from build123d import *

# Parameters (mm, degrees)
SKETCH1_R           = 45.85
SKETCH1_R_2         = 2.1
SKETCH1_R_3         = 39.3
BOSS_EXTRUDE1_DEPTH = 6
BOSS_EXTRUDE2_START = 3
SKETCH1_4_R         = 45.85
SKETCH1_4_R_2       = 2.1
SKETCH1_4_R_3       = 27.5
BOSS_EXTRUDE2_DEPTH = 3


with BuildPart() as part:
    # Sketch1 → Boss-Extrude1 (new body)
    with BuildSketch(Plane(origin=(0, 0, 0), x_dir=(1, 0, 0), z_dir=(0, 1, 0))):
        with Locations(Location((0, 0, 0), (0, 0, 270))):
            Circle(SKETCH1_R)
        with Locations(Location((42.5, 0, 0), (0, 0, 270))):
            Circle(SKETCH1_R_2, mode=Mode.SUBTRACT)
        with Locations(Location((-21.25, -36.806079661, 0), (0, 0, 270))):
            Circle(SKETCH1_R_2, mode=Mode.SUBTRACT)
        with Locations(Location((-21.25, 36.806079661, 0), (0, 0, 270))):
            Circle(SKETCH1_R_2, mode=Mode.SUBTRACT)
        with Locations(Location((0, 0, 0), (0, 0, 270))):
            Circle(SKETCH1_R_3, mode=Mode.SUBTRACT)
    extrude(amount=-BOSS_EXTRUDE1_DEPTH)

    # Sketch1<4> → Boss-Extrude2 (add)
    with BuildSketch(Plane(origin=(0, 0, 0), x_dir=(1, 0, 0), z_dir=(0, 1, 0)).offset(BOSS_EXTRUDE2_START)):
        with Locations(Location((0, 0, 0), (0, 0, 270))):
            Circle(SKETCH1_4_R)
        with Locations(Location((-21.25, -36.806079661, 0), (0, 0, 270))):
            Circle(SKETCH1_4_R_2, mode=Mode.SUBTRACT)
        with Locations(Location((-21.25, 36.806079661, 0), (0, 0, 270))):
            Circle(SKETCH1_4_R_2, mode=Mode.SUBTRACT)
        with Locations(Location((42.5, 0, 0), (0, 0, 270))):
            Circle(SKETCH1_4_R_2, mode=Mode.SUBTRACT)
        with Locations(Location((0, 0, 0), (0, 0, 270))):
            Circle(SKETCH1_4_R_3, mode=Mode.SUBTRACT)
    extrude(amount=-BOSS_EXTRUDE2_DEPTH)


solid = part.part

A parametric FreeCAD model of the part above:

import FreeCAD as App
import Part
import Sketcher

V = App.Vector

doc = App.newDocument("Part")
body = doc.addObject("PartDesign::Body", "Body")

# Sketch on XZ plane
sketch1 = doc.addObject("Sketcher::SketchObject", "Sketch")
body.addObject(sketch1)
sketch1.AttachmentSupport = (doc.XZ_Plane, [""])
sketch1.MapMode = "FlatFace"
sketch1.addGeometry(Part.Circle(V(0, 0, 0), V(0, 0, 1), 45.9), False)
sketch1.addGeometry(Part.Circle(V(-21.2, -36.8, 0), V(0, 0, 1), 2.1), False)
sketch1.addGeometry(Part.Circle(V(-21.2, 36.8, 0), V(0, 0, 1), 2.1), False)
sketch1.addGeometry(Part.Circle(V(0, 0, 0), V(0, 0, 1), 39.3), False)
sketch1.addGeometry(Part.Circle(V(42.5, 0, 0), V(0, 0, 1), 2.1), False)
sketch1.addConstraint(Sketcher.Constraint("Coincident", 0, 3, -1, 1))
sketch1.addConstraint(Sketcher.Constraint("Coincident", 3, 3, -1, 1))
sketch1.addConstraint(Sketcher.Constraint("Equal", 1, 2))
sketch1.addConstraint(Sketcher.Constraint("Equal", 2, 4))
sketch1.addConstraint(Sketcher.Constraint("Symmetric", 1, 3, 2, 3, -1))
sketch1.addConstraint(Sketcher.Constraint("PointOnObject", 4, 3, -1))
sketch1.addConstraint(Sketcher.Constraint("Diameter", 0, 91.7))
sketch1.addConstraint(Sketcher.Constraint("Diameter", 1, 4.2))
sketch1.addConstraint(Sketcher.Constraint("Diameter", 3, 78.6))
sketch1.addConstraint(Sketcher.Constraint("DistanceX", -1, 1, 4, 3, 42.5))
sketch1.addConstraint(Sketcher.Constraint("DistanceX", 1, 3, -1, 1, 21.25))
sketch1.addConstraint(Sketcher.Constraint("DistanceY", 1, 3, -1, 1, 36.80608))
pad1 = doc.addObject("PartDesign::Pad", "Pad")
body.addObject(pad1)
pad1.Profile = sketch1
pad1.Length = 6

# Sketch on XZ plane
sketch2 = doc.addObject("Sketcher::SketchObject", "Sketch001")
body.addObject(sketch2)
sketch2.AttachmentSupport = (doc.XZ_Plane, [""])
sketch2.MapMode = "FlatFace"
sketch2.AttachmentOffset = App.Placement(V(0, 0, -3), App.Rotation())
sketch2.addGeometry(Part.Circle(V(0, 0, 0), V(0, 0, 1), 45.9), False)
sketch2.addGeometry(Part.Circle(V(-21.2, -36.8, 0), V(0, 0, 1), 2.1), False)
sketch2.addGeometry(Part.Circle(V(0, 0, 0), V(0, 0, 1), 27.5), False)
sketch2.addGeometry(Part.Circle(V(-21.2, 36.8, 0), V(0, 0, 1), 2.1), False)
sketch2.addGeometry(Part.Circle(V(42.5, 0, 0), V(0, 0, 1), 2.1), False)
sketch2.addConstraint(Sketcher.Constraint("Coincident", 0, 3, -1, 1))
sketch2.addConstraint(Sketcher.Constraint("Coincident", 2, 3, -1, 1))
sketch2.addConstraint(Sketcher.Constraint("Equal", 1, 3))
sketch2.addConstraint(Sketcher.Constraint("Equal", 3, 4))
sketch2.addConstraint(Sketcher.Constraint("Symmetric", 1, 3, 3, 3, -1))
sketch2.addConstraint(Sketcher.Constraint("PointOnObject", 4, 3, -1))
sketch2.addConstraint(Sketcher.Constraint("Diameter", 2, 55.0))
sketch2.addConstraint(Sketcher.Constraint("Diameter", 0, 91.7))
sketch2.addConstraint(Sketcher.Constraint("Diameter", 1, 4.2))
sketch2.addConstraint(Sketcher.Constraint("DistanceX", -1, 1, 4, 3, 42.5))
sketch2.addConstraint(Sketcher.Constraint("DistanceX", 1, 3, -1, 1, 21.25))
sketch2.addConstraint(Sketcher.Constraint("DistanceY", 1, 3, -1, 1, 36.80608))
pad2 = doc.addObject("PartDesign::Pad", "Pad001")
body.addObject(pad2)
pad2.Profile = sketch2
pad2.Length = 3

doc.recompute()
